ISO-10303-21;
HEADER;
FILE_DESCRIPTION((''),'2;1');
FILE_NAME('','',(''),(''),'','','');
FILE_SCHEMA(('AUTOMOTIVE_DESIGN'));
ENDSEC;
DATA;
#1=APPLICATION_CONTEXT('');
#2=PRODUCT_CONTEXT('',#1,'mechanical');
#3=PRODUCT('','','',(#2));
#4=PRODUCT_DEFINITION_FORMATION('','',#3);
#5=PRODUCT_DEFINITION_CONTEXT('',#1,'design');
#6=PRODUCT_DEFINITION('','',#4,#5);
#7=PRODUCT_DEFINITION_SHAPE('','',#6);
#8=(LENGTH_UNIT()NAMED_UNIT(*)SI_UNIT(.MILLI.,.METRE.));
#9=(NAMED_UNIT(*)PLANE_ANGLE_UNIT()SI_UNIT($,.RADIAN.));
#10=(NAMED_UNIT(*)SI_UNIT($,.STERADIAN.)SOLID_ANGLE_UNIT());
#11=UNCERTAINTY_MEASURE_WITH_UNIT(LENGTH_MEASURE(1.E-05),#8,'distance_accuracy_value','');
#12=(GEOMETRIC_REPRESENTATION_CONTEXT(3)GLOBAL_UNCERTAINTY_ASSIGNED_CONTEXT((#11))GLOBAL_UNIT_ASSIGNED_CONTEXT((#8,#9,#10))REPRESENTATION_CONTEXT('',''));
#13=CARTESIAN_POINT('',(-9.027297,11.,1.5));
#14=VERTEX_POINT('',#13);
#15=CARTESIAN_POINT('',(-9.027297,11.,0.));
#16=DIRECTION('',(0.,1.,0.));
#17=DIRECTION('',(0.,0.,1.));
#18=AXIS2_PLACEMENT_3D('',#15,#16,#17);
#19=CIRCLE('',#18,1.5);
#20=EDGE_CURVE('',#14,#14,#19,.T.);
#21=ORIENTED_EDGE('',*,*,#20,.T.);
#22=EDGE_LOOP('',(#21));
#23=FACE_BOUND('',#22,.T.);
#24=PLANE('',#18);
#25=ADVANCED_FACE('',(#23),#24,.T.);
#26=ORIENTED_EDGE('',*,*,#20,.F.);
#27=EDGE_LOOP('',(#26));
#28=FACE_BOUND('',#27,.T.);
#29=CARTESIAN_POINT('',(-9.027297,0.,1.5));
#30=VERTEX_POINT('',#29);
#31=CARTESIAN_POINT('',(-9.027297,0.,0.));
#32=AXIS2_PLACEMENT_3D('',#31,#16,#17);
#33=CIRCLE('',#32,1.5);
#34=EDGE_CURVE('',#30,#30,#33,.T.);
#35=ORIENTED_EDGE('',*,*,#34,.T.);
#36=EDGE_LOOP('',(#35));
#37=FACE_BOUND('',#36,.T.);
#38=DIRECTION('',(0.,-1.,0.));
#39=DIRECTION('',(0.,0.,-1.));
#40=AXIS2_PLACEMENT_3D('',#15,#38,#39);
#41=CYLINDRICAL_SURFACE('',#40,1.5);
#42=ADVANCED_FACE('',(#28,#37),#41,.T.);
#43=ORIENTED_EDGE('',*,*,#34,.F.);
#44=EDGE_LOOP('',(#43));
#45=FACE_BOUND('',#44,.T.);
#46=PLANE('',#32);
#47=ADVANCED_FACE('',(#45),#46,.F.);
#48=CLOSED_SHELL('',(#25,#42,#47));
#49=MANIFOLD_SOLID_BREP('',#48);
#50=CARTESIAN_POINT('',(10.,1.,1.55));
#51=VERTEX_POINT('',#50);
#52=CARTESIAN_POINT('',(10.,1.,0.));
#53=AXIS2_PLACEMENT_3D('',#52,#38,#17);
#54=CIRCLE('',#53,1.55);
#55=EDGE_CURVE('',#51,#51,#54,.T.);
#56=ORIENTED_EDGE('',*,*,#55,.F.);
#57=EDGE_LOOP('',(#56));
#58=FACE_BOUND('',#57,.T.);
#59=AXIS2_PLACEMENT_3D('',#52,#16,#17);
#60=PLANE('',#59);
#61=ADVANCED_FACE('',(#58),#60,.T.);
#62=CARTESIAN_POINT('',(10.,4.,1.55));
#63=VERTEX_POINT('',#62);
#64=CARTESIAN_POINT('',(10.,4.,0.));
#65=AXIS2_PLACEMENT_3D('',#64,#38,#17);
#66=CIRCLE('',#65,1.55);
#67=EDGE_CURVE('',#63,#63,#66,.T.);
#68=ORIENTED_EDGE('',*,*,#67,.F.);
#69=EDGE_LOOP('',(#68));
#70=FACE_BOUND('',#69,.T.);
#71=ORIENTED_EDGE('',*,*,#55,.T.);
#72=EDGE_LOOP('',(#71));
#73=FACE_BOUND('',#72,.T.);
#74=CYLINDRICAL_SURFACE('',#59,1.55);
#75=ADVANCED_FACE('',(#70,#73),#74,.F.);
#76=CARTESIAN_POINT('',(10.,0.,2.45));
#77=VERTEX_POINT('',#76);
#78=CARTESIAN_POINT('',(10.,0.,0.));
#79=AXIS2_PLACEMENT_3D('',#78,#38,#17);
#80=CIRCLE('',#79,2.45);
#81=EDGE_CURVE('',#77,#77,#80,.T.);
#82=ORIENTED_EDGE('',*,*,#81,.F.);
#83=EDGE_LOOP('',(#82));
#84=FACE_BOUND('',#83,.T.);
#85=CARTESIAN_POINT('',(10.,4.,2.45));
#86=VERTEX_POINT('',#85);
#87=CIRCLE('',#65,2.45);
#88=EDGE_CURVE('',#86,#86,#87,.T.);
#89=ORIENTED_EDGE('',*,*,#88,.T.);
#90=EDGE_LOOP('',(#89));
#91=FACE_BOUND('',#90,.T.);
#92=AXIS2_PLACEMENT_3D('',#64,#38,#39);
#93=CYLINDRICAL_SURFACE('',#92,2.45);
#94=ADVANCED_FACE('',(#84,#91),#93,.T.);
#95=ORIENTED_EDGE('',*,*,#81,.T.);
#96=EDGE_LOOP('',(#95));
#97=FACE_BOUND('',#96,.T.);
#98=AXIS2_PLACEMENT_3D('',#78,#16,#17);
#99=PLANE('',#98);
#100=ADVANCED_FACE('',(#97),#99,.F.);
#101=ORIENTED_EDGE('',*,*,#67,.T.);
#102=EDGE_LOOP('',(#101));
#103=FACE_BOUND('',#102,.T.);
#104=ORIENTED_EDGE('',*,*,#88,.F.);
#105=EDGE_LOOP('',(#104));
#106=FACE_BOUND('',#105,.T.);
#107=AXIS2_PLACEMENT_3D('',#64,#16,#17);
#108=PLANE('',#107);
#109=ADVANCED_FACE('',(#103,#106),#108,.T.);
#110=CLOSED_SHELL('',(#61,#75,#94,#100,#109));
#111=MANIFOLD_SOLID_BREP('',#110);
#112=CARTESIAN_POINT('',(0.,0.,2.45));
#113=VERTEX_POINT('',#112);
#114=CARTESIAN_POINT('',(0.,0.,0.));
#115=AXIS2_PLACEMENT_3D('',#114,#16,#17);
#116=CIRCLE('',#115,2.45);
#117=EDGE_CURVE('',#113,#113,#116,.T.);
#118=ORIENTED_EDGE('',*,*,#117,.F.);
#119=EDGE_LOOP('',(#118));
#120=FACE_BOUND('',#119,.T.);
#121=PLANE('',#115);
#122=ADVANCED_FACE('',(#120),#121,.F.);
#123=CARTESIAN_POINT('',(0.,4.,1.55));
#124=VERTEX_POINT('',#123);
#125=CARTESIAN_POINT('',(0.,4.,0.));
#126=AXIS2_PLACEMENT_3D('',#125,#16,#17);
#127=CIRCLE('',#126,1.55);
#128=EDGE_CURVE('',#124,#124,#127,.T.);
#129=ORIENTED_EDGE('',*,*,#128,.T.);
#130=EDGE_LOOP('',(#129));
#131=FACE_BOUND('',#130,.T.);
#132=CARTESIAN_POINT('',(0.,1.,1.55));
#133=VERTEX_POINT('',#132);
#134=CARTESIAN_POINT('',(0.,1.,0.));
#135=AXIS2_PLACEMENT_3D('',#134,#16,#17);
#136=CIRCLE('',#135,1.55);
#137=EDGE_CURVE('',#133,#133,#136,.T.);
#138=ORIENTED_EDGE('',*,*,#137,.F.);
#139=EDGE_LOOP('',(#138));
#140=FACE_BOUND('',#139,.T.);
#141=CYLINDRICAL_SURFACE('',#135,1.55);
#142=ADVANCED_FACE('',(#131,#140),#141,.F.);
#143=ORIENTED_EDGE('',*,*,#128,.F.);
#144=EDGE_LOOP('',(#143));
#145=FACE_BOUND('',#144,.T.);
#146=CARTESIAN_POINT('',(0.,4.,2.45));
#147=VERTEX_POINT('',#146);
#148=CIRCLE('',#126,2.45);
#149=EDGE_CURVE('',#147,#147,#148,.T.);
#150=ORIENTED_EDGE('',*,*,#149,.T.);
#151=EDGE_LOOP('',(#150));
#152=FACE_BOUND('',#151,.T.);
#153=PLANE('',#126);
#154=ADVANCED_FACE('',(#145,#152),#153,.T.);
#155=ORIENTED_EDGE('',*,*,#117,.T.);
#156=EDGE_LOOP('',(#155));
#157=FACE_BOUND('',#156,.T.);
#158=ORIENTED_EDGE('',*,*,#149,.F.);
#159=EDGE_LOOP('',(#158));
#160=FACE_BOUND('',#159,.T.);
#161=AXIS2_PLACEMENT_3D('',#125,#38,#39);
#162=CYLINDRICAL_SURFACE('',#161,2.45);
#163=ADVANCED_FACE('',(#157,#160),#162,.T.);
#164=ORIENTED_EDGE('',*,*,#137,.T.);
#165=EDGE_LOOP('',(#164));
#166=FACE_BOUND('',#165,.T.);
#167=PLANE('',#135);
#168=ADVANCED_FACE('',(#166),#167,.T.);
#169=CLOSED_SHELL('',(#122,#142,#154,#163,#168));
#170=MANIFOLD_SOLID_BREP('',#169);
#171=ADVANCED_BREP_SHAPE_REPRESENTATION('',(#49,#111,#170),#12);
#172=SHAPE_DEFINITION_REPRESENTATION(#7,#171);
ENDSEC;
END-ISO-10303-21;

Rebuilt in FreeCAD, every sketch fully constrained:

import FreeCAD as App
import Part
import Sketcher

V = App.Vector
Q = App.Units.Quantity

doc = App.newDocument("Part")
body = doc.addObject("PartDesign::Body", "Body")

# Sketch on XZ plane
sketch1 = body.newObject("Sketcher::SketchObject", "Sketch")
sketch1.AttachmentSupport = (doc.getObject("XZ_Plane"), [""])
sketch1.MapMode = "FlatFace"
sketch1.addGeometry(Part.Circle(V(0, 0, 0), V(0, 0, 1), 2.45), False)
sketch1.addConstraint([
    Sketcher.Constraint("Coincident", 0, 3, -1, 1),
    Sketcher.Constraint("Diameter", 0, Q("4.9 mm")),
])
pad1 = body.newObject("PartDesign::Pad", "Pad")
pad1.Profile = sketch1
pad1.Length = 4
pad1.Reversed = True

# Sketch on XZ plane
sketch2 = body.newObject("Sketcher::SketchObject", "Sketch001")
sketch2.AttachmentSupport = (doc.getObject("XZ_Plane"), [""])
sketch2.MapMode = "FlatFace"
sketch2.AttachmentOffset = App.Placement(V(0, 0, -4), App.Rotation())
sketch2.addGeometry(Part.Circle(V(0, 0, 0), V(0, 0, 1), 1.55), False)
sketch2.addConstraint([
    Sketcher.Constraint("Coincident", 0, 3, -1, 1),
    Sketcher.Constraint("Diameter", 0, Q("3.1 mm")),
])
pocket1 = body.newObject("PartDesign::Pocket", "Pocket")
pocket1.Profile = sketch2
pocket1.Length = 3
pocket1.Reversed = True
body2 = doc.addObject("PartDesign::Body", "Body001")

# Sketch on XZ plane
sketch3 = body2.newObject("Sketcher::SketchObject", "Sketch002")
sketch3.AttachmentSupport = (doc.getObject("XZ_Plane001"), [""])
sketch3.MapMode = "FlatFace"
sketch3.addGeometry(Part.Circle(V(-9.027297, 0, 0), V(0, 0, 1), 1.5), False)
sketch3.addConstraint([
    Sketcher.Constraint("PointOnObject", 0, 3, -1),
    Sketcher.Constraint("Diameter", 0, Q("3 mm")),
    Sketcher.Constraint("DistanceX", 0, 3, -1, 1, Q("9.027297 mm")),
])
pad2 = body2.newObject("PartDesign::Pad", "Pad001")
pad2.Profile = sketch3
pad2.Length = 11
pad2.Reversed = True
body3 = doc.addObject("PartDesign::Body", "Body002")
doc.recompute()

mirroring = doc.addObject("Part::Mirroring", "Mirroring")
mirroring.Source = body
mirroring.Base = V(5, 0, 0)
mirroring.Normal = V(1, 0, 0)
body3.BaseFeature = mirroring
doc.recompute()
mirroring.Visibility = False

doc.recompute()
